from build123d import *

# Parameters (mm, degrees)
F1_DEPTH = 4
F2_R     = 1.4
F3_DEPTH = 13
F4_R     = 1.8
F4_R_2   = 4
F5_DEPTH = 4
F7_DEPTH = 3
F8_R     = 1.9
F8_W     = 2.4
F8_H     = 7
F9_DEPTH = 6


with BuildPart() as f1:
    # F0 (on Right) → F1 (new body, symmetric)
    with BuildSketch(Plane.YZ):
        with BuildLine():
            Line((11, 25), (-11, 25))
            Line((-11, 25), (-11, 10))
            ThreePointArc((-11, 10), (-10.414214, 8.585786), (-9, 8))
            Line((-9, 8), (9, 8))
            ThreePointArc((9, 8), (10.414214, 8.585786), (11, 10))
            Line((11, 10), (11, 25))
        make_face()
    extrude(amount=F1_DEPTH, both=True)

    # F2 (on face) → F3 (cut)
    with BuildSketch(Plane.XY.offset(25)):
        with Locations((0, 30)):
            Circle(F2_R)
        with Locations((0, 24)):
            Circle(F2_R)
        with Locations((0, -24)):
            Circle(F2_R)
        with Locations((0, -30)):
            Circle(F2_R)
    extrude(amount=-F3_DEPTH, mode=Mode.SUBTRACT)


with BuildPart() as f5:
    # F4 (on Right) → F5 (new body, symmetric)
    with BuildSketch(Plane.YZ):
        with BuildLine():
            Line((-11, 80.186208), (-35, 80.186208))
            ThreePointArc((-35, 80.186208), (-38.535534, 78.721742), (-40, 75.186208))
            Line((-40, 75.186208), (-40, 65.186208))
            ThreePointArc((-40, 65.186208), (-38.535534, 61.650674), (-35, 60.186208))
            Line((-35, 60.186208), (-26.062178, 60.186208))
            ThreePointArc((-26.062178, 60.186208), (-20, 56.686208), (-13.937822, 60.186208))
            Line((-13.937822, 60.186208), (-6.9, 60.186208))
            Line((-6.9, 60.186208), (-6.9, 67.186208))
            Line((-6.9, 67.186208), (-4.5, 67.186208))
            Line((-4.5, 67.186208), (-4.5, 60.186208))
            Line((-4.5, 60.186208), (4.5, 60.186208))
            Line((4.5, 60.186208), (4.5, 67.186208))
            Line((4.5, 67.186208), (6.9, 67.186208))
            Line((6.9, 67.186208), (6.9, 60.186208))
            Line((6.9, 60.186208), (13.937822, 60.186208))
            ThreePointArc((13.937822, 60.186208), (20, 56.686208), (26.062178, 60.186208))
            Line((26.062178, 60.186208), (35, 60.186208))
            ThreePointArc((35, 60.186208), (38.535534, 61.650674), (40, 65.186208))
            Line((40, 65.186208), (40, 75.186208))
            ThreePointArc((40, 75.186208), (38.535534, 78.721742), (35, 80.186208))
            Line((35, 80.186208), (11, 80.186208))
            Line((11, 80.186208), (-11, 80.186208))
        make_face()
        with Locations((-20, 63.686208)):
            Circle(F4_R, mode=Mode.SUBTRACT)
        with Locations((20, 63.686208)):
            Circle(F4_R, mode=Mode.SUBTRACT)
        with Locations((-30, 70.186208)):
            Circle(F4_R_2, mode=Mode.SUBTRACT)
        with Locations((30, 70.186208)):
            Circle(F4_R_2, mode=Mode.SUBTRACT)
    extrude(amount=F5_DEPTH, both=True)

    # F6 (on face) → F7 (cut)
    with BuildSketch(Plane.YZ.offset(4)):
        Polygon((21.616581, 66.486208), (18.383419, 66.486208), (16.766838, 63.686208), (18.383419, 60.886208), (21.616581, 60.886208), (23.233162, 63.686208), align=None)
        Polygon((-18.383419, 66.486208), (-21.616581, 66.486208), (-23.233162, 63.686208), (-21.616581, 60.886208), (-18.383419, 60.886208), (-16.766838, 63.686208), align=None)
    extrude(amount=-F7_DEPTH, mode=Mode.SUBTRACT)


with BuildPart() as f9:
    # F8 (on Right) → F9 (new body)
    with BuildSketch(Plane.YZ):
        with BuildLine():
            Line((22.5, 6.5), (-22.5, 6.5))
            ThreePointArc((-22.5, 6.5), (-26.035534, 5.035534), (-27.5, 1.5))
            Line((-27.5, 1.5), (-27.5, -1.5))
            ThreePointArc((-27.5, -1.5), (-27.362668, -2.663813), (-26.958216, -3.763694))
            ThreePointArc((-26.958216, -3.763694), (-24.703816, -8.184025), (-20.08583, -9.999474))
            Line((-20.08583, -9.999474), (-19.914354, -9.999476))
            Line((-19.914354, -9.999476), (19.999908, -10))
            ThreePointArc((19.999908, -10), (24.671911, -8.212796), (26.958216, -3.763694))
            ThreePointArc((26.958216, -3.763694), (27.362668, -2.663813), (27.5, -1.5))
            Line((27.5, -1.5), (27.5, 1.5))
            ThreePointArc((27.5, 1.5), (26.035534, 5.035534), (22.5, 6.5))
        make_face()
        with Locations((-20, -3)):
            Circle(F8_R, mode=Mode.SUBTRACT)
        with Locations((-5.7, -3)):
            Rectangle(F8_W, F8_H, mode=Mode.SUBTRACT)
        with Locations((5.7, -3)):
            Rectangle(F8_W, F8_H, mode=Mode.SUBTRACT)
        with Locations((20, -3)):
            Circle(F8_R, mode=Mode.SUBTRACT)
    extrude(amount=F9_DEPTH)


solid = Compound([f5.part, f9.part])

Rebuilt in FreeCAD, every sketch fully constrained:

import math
import FreeCAD as App
import Part
import Sketcher
from FreeCAD import Vector
Q = App.Units.Quantity


def add_polygon(sketch, points):
    """Adds a closed chain of lines whose ends are joined by coincident constraints."""
    first, n = sketch.GeometryCount, len(points)
    for a, b in zip(points, points[1:] + points[:1]):
        sketch.addGeometry(Part.LineSegment(App.Vector(*a, 0), App.Vector(*b, 0)), False)
    for i in range(n):
        sketch.addConstraint(Sketcher.Constraint("Coincident", first + i, 2, first + (i + 1) % n, 1))

doc = App.newDocument("Part")
body = doc.addObject("PartDesign::Body", "Body")

sketch1 = doc.addObject("Sketcher::SketchObject", "Sketch")
body.addObject(sketch1)
sketch1.AttachmentSupport = (doc.YZ_Plane, [""])
sketch1.MapMode = "FlatFace"
sketch1.addGeometry(Part.LineSegment(Vector(11, 25, 0), Vector(-11, 25, 0)), False)
sketch1.addGeometry(Part.LineSegment(Vector(-11, 25, 0), Vector(-11, 10, 0)), False)
sketch1.addGeometry(Part.ArcOfCircle(Part.Circle(Vector(-9, 10, 0), Vector(0, 0, 1), 2), math.radians(180), math.radians(270)), False)
sketch1.addGeometry(Part.LineSegment(Vector(-9, 8, 0), Vector(9, 8, 0)), False)
sketch1.addGeometry(Part.ArcOfCircle(Part.Circle(Vector(9, 10, 0), Vector(0, 0, 1), 2), math.radians(-90), math.radians(0)), False)
sketch1.addGeometry(Part.LineSegment(Vector(11, 10, 0), Vector(11, 25, 0)), False)
sketch1.addConstraint(Sketcher.Constraint("Coincident", 0, 2, 1, 1))
sketch1.addConstraint(Sketcher.Constraint("Tangent", 1, 2, 2, 1))
sketch1.addConstraint(Sketcher.Constraint("Tangent", 2, 2, 3, 1))
sketch1.addConstraint(Sketcher.Constraint("Tangent", 3, 2, 4, 1))
sketch1.addConstraint(Sketcher.Constraint("Tangent", 4, 2, 5, 1))
sketch1.addConstraint(Sketcher.Constraint("Coincident", 5, 2, 0, 1))
sketch1.addConstraint(Sketcher.Constraint("Horizontal", 0))
sketch1.addConstraint(Sketcher.Constraint("Vertical", 1))
sketch1.addConstraint(Sketcher.Constraint("Horizontal", 3))
sketch1.addConstraint(Sketcher.Constraint("Vertical", 5))
sketch1.addConstraint(Sketcher.Constraint("Equal", 2, 4))
sketch1.addConstraint(Sketcher.Constraint("Radius", 2, 1.999999))
sketch1.addConstraint(Sketcher.Constraint("DistanceX", 0, 2, 0, 1, 22.0))
sketch1.addConstraint(Sketcher.Constraint("DistanceY", 1, 2, 1, 1, 15.0))
sketch1.addConstraint(Sketcher.Constraint("DistanceX", 2, 3, -1, 1, 9.000001))
sketch1.addConstraint(Sketcher.Constraint("DistanceY", -1, 1, 2, 3, 9.999999))
pad1 = doc.addObject("PartDesign::Pad", "Pad")
body.addObject(pad1)
pad1.Profile = sketch1
pad1.Length = 8
pad1.Midplane = True

sketch2 = doc.addObject("Sketcher::SketchObject", "Sketch001")
body.addObject(sketch2)
sketch2.AttachmentSupport = (doc.XY_Plane, [""])
sketch2.MapMode = "FlatFace"
sketch2.AttachmentOffset = App.Placement(Vector(0, 0, 25), App.Rotation())
sketch2.addGeometry(Part.Circle(Vector(0, 30, 0), Vector(0, 0, 1), 1.4), False)
sketch2.addGeometry(Part.Circle(Vector(0, 24, 0), Vector(0, 0, 1), 1.4), False)
sketch2.addGeometry(Part.Circle(Vector(0, -24, 0), Vector(0, 0, 1), 1.4), False)
sketch2.addGeometry(Part.Circle(Vector(0, -30, 0), Vector(0, 0, 1), 1.4), False)
sketch2.addConstraint(Sketcher.Constraint("Equal", 0, 1))
sketch2.addConstraint(Sketcher.Constraint("Equal", 1, 2))
sketch2.addConstraint(Sketcher.Constraint("Equal", 2, 3))
sketch2.addConstraint(Sketcher.Constraint("Symmetric", 1, 3, 2, 3, -1, 1))
sketch2.addConstraint(Sketcher.Constraint("Symmetric", 0, 3, 3, 3, -1, 1))
sketch2.addConstraint(Sketcher.Constraint("PointOnObject", 0, 3, -2))
sketch2.addConstraint(Sketcher.Constraint("PointOnObject", 1, 3, -2))
sketch2.addConstraint(Sketcher.Constraint("Diameter", 0, 2.8))
sketch2.addConstraint(Sketcher.Constraint("DistanceY", -1, 1, 0, 3, 30.0))
sketch2.addConstraint(Sketcher.Constraint("DistanceY", -1, 1, 1, 3, 24.0))
pocket1 = doc.addObject("PartDesign::Pocket", "Pocket")
body.addObject(pocket1)
pocket1.Profile = sketch2
pocket1.Length = 13
body2 = doc.addObject("PartDesign::Body", "Body001")

sketch3 = doc.addObject("Sketcher::SketchObject", "Sketch002")
body2.addObject(sketch3)
sketch3.AttachmentSupport = (doc.getObject("YZ_Plane001"), [""])
sketch3.MapMode = "FlatFace"
sketch3.addGeometry(Part.ArcOfCircle(Part.Circle(Vector(-35, 75.2, 0), Vector(0, 0, 1), 5), math.radians(90), math.radians(180)), False)
sketch3.addGeometry(Part.LineSegment(Vector(-40, 75.2, 0), Vector(-40, 65.2, 0)), False)
sketch3.addGeometry(Part.ArcOfCircle(Part.Circle(Vector(-35, 65.2, 0), Vector(0, 0, 1), 5), math.radians(180), math.radians(270)), False)
sketch3.addGeometry(Part.LineSegment(Vector(-35, 60.2, 0), Vector(-26.1, 60.2, 0)), False)
sketch3.addGeometry(Part.ArcOfCircle(Part.Circle(Vector(-20, 63.7, 0), Vector(0, 0, 1), 7), math.radians(-150), math.radians(-30)), False)
sketch3.addGeometry(Part.LineSegment(Vector(-13.9, 60.2, 0), Vector(-6.9, 60.2, 0)), False)
sketch3.addGeometry(Part.LineSegment(Vector(-6.9, 60.2, 0), Vector(-6.9, 67.2, 0)), False)
sketch3.addGeometry(Part.LineSegment(Vector(-6.9, 67.2, 0), Vector(-4.5, 67.2, 0)), False)
sketch3.addGeometry(Part.LineSegment(Vector(-4.5, 67.2, 0), Vector(-4.5, 60.2, 0)), False)
sketch3.addGeometry(Part.LineSegment(Vector(-4.5, 60.2, 0), Vector(4.5, 60.2, 0)), False)
sketch3.addGeometry(Part.LineSegment(Vector(4.5, 60.2, 0), Vector(4.5, 67.2, 0)), False)
sketch3.addGeometry(Part.LineSegment(Vector(4.5, 67.2, 0), Vector(6.9, 67.2, 0)), False)
sketch3.addGeometry(Part.LineSegment(Vector(6.9, 67.2, 0), Vector(6.9, 60.2, 0)), False)
sketch3.addGeometry(Part.LineSegment(Vector(6.9, 60.2, 0), Vector(13.9, 60.2, 0)), False)
sketch3.addGeometry(Part.ArcOfCircle(Part.Circle(Vector(20, 63.7, 0), Vector(0, 0, 1), 7), math.radians(-150), math.radians(-30)), False)
sketch3.addGeometry(Part.LineSegment(Vector(26.1, 60.2, 0), Vector(35, 60.2, 0)), False)
sketch3.addGeometry(Part.ArcOfCircle(Part.Circle(Vector(35, 65.2, 0), Vector(0, 0, 1), 5), math.radians(-90), math.radians(0)), False)
sketch3.addGeometry(Part.LineSegment(Vector(40, 65.2, 0), Vector(40, 75.2, 0)), False)
sketch3.addGeometry(Part.ArcOfCircle(Part.Circle(Vector(35, 75.2, 0), Vector(0, 0, 1), 5), math.radians(0), math.radians(90)), False)
sketch3.addGeometry(Part.LineSegment(Vector(35, 80.2, 0), Vector(-35, 80.2, 0)), False)
sketch3.addGeometry(Part.Circle(Vector(-20, 63.7, 0), Vector(0, 0, 1), 1.8), False)
sketch3.addGeometry(Part.Circle(Vector(20, 63.7, 0), Vector(0, 0, 1), 1.8), False)
sketch3.addGeometry(Part.Circle(Vector(-30, 70.2, 0), Vector(0, 0, 1), 4), False)
sketch3.addGeometry(Part.Circle(Vector(30, 70.2, 0), Vector(0, 0, 1), 4), False)
sketch3.addConstraint(Sketcher.Constraint("Tangent", 0, 2, 1, 1))
sketch3.addConstraint(Sketcher.Constraint("Tangent", 1, 2, 2, 1))
sketch3.addConstraint(Sketcher.Constraint("Tangent", 2, 2, 3, 1))
sketch3.addConstraint(Sketcher.Constraint("Coincident", 3, 2, 4, 1))
sketch3.addConstraint(Sketcher.Constraint("Coincident", 4, 2, 5, 1))
sketch3.addConstraint(Sketcher.Constraint("Coincident", 5, 2, 6, 1))
sketch3.addConstraint(Sketcher.Constraint("Coincident", 6, 2, 7, 1))
sketch3.addConstraint(Sketcher.Constraint("Coincident", 7, 2, 8, 1))
sketch3.addConstraint(Sketcher.Constraint("Coincident", 8, 2, 9, 1))
sketch3.addConstraint(Sketcher.Constraint("Coincident", 9, 2, 10, 1))
sketch3.addConstraint(Sketcher.Constraint("Coincident", 10, 2, 11, 1))
sketch3.addConstraint(Sketcher.Constraint("Coincident", 11, 2, 12, 1))
sketch3.addConstraint(Sketcher.Constraint("Coincident", 12, 2, 13, 1))
sketch3.addConstraint(Sketcher.Constraint("Coincident", 13, 2, 14, 1))
sketch3.addConstraint(Sketcher.Constraint("Coincident", 14, 2, 15, 1))
sketch3.addConstraint(Sketcher.Constraint("Tangent", 15, 2, 16, 1))
sketch3.addConstraint(Sketcher.Constraint("Tangent", 16, 2, 17, 1))
sketch3.addConstraint(Sketcher.Constraint("Tangent", 17, 2, 18, 1))
sketch3.addConstraint(Sketcher.Constraint("Tangent", 18, 2, 19, 1))
sketch3.addConstraint(Sketcher.Constraint("Tangent", 19, 2, 0, 1))
sketch3.addConstraint(Sketcher.Constraint("Vertical", 1))
sketch3.addConstraint(Sketcher.Constraint("Horizontal", 3))
sketch3.addConstraint(Sketcher.Constraint("Horizontal", 5))
sketch3.addConstraint(Sketcher.Constraint("Vertical", 6))
sketch3.addConstraint(Sketcher.Constraint("Horizontal", 7))
sketch3.addConstraint(Sketcher.Constraint("Vertical", 8))
sketch3.addConstraint(Sketcher.Constraint("Horizontal", 9))
sketch3.addConstraint(Sketcher.Constraint("Vertical", 10))
sketch3.addConstraint(Sketcher.Constraint("Horizontal", 11))
sketch3.addConstraint(Sketcher.Constraint("Vertical", 12))
sketch3.addConstraint(Sketcher.Constraint("Horizontal", 13))
sketch3.addConstraint(Sketcher.Constraint("Horizontal", 15))
sketch3.addConstraint(Sketcher.Constraint("Vertical", 17))
sketch3.addConstraint(Sketcher.Constraint("Horizontal", 19))
sketch3.addConstraint(Sketcher.Constraint("Coincident", 20, 3, 4, 3))
sketch3.addConstraint(Sketcher.Constraint("Coincident", 21, 3, 14, 3))
sketch3.addConstraint(Sketcher.Constraint("Equal", 0, 2))
sketch3.addConstraint(Sketcher.Constraint("Equal", 4, 14))
sketch3.addConstraint(Sketcher.Constraint("Equal", 2, 16))
sketch3.addConstraint(Sketcher.Constraint("Equal", 16, 18))
sketch3.addConstraint(Sketcher.Constraint("Equal", 20, 21))
sketch3.addConstraint(Sketcher.Constraint("Equal", 22, 23))
sketch3.addConstraint(Sketcher.Constraint("Symmetric", 4, 3, 14, 3, -2))
sketch3.addConstraint(Sketcher.Constraint("Symmetric", 2, 3, 16, 3, -2))
sketch3.addConstraint(Sketcher.Constraint("Symmetric", 22, 3, 23, 3, -2))
sketch3.addConstraint(Sketcher.Constraint("Symmetric", 7, 2, 10, 2, -2))
sketch3.addConstraint(Sketcher.Constraint("Symmetric", 5, 2, 12, 2, -2))
sketch3.addConstraint(Sketcher.Constraint("Horizontal", 3, 2, 4, 2))
sketch3.addConstraint(Sketcher.Constraint("Horizontal", 5, 2, 8, 2))
sketch3.addConstraint(Sketcher.Constraint("Diameter", 22, 8.0))
sketch3.addConstraint(Sketcher.Constraint("Radius", 0, 5.0))
sketch3.addConstraint(Sketcher.Constraint("Radius", 4, 7.0))
sketch3.addConstraint(Sketcher.Constraint("Diameter", 20, 3.6))
sketch3.addConstraint(Sketcher.Constraint("DistanceX", 9, 1, 9, 2, 9.0))
sketch3.addConstraint(Sketcher.Constraint("DistanceX", 19, 2, 19, 1, 70.0))
sketch3.addConstraint(Sketcher.Constraint("DistanceY", 1, 2, 1, 1, 10.0))
sketch3.addConstraint(Sketcher.Constraint("DistanceY", 6, 1, 6, 2, 7.0))
sketch3.addConstraint(Sketcher.Constraint("DistanceX", 7, 1, 7, 2, 2.4))
sketch3.addConstraint(Sketcher.Constraint("DistanceX", 4, 3, -1, 1, 20.0))
sketch3.addConstraint(Sketcher.Constraint("DistanceX", 22, 3, -1, 1, 30.0))
sketch3.addConstraint(Sketcher.Constraint("DistanceY", 2, 3, 22, 3, 5.0))
sketch3.addConstraint(Sketcher.Constraint("DistanceY", 4, 3, 2, 3, 1.499999))
sketch3.addConstraint(Sketcher.Constraint("DistanceY", -1, 1, 0, 3, 75.186208))
pad2 = doc.addObject("PartDesign::Pad", "Pad001")
body2.addObject(pad2)
pad2.Profile = sketch3
pad2.Length = 8
pad2.Midplane = True

sketch4 = doc.addObject("Sketcher::SketchObject", "Sketch003")
body2.addObject(sketch4)
sketch4.AttachmentSupport = (doc.getObject("YZ_Plane001"), [""])
sketch4.MapMode = "FlatFace"
sketch4.AttachmentOffset = App.Placement(Vector(0, 0, 4), App.Rotation())
add_polygon(sketch4, [(21.6, 66.5), (18.4, 66.5), (16.8, 63.7), (18.4, 60.9), (21.6, 60.9), (23.2, 63.7)])
add_polygon(sketch4, [(-18.4, 66.5), (-21.6, 66.5), (-23.2, 63.7), (-21.6, 60.9), (-18.4, 60.9), (-16.8, 63.7)])
sketch4.addConstraint(Sketcher.Constraint("Horizontal", 0))
sketch4.addConstraint(Sketcher.Constraint("Horizontal", 3))
sketch4.addConstraint(Sketcher.Constraint("Horizontal", 6))
sketch4.addConstraint(Sketcher.Constraint("Horizontal", 9))
sketch4.addConstraint(Sketcher.Constraint("Symmetric", 5, 2, 6, 2, -2))
sketch4.addConstraint(Sketcher.Constraint("Symmetric", 4, 2, 7, 2, -2))
sketch4.addConstraint(Sketcher.Constraint("Symmetric", 3, 2, 8, 2, -2))
sketch4.addConstraint(Sketcher.Constraint("Symmetric", 1, 2, 10, 2, -2))
sketch4.addConstraint(Sketcher.Constraint("Parallel", 1, 4))
sketch4.addConstraint(Sketcher.Constraint("Parallel", 2, 5))
sketch4.addConstraint(Sketcher.Constraint("Parallel", 4, 7))
sketch4.addConstraint(Sketcher.Constraint("Parallel", 7, 10))
sketch4.addConstraint(Sketcher.Constraint("Parallel", 8, 11))
sketch4.addConstraint(Sketcher.Constraint("Horizontal", 1, 2, 4, 2))
sketch4.addConstraint(Sketcher.Constraint("Vertical", 0, 2, 2, 2))
sketch4.addConstraint(Sketcher.Constraint("Angle", 1, Q("-120.000004 deg")))
sketch4.addConstraint(Sketcher.Constraint("DistanceX", 6, 2, 0, 2, 40.0))
sketch4.addConstraint(Sketcher.Constraint("DistanceY", 1, 2, 0, 2, 2.8))
sketch4.addConstraint(Sketcher.Constraint("DistanceX", 0, 2, 0, 1, 3.233162))
sketch4.addConstraint(Sketcher.Constraint("DistanceY", -1, 1, 0, 2, 66.486208))
pocket2 = doc.addObject("PartDesign::Pocket", "Pocket001")
body2.addObject(pocket2)
pocket2.Profile = sketch4
pocket2.Length = 3
body3 = doc.addObject("PartDesign::Body", "Body002")

sketch5 = doc.addObject("Sketcher::SketchObject", "Sketch004")
body3.addObject(sketch5)
sketch5.AttachmentSupport = (doc.getObject("YZ_Plane002"), [""])
sketch5.MapMode = "FlatFace"
sketch5.addGeometry(Part.LineSegment(Vector(22.5, 6.5, 0), Vector(-22.5, 6.5, 0)), False)
sketch5.addGeometry(Part.ArcOfCircle(Part.Circle(Vector(-22.5, 1.5, 0), Vector(0, 0, 1), 5), math.radians(90), math.radians(180)), False)
sketch5.addGeometry(Part.LineSegment(Vector(-27.5, 1.5, 0), Vector(-27.5, -1.5, 0)), False)
sketch5.addGeometry(Part.ArcOfCircle(Part.Circle(Vector(-22.5, -1.5, 0), Vector(0, 0, 1), 5), math.radians(180), math.radians(207)), False)
sketch5.addGeometry(Part.ArcOfCircle(Part.Circle(Vector(-20, -3, 0), Vector(0, 0, 1), 7), math.radians(-174), math.radians(-91)), False)
sketch5.addGeometry(Part.LineSegment(Vector(-20.09, -10, 0), Vector(-19.91, -10, 0)), False)
sketch5.addGeometry(Part.LineSegment(Vector(-19.91, -10, 0), Vector(20, -10, 0)), False)
sketch5.addGeometry(Part.ArcOfCircle(Part.Circle(Vector(20, -3, 0), Vector(0, 0, 1), 7), math.radians(-90), math.radians(-6)), False)
sketch5.addGeometry(Part.ArcOfCircle(Part.Circle(Vector(22.5, -1.5, 0), Vector(0, 0, 1), 5), math.radians(-27), math.radians(0)), False)
sketch5.addGeometry(Part.LineSegment(Vector(27.5, -1.5, 0), Vector(27.5, 1.5, 0)), False)
sketch5.addGeometry(Part.ArcOfCircle(Part.Circle(Vector(22.5, 1.5, 0), Vector(0, 0, 1), 5), math.radians(0), math.radians(90)), False)
sketch5.addGeometry(Part.Circle(Vector(-20, -3, 0), Vector(0, 0, 1), 1.9), False)
add_polygon(sketch5, [(-4.5, -6.5), (-6.9, -6.5), (-6.9, 0.5), (-4.5, 0.5)])
add_polygon(sketch5, [(6.9, -6.5), (4.5, -6.5), (4.5, 0.5), (6.9, 0.5)])
sketch5.addGeometry(Part.Circle(Vector(20, -3, 0), Vector(0, 0, 1), 1.9), False)
sketch5.addConstraint(Sketcher.Constraint("Tangent", 0, 2, 1, 1))
sketch5.addConstraint(Sketcher.Constraint("Tangent", 1, 2, 2, 1))
sketch5.addConstraint(Sketcher.Constraint("Tangent", 2, 2, 3, 1))
sketch5.addConstraint(Sketcher.Constraint("Coincident", 3, 2, 4, 1))
sketch5.addConstraint(Sketcher.Constraint("Coincident", 4, 2, 5, 1))
sketch5.addConstraint(Sketcher.Constraint("Coincident", 5, 2, 6, 1))
sketch5.addConstraint(Sketcher.Constraint("Tangent", 6, 2, 7, 1))
sketch5.addConstraint(Sketcher.Constraint("Coincident", 7, 2, 8, 1))
sketch5.addConstraint(Sketcher.Constraint("Tangent", 8, 2, 9, 1))
sketch5.addConstraint(Sketcher.Constraint("Tangent", 9, 2, 10, 1))
sketch5.addConstraint(Sketcher.Constraint("Tangent", 10, 2, 0, 1))
sketch5.addConstraint(Sketcher.Constraint("Horizontal", 0))
sketch5.addConstraint(Sketcher.Constraint("Vertical", 2))
sketch5.addConstraint(Sketcher.Constraint("Vertical", 9))
sketch5.addConstraint(Sketcher.Constraint("Horizontal", 12))
sketch5.addConstraint(Sketcher.Constraint("Vertical", 13))
sketch5.addConstraint(Sketcher.Constraint("Horizontal", 14))
sketch5.addConstraint(Sketcher.Constraint("Vertical", 15))
sketch5.addConstraint(Sketcher.Constraint("Horizontal", 16))
sketch5.addConstraint(Sketcher.Constraint("Vertical", 17))
sketch5.addConstraint(Sketcher.Constraint("Horizontal", 18))
sketch5.addConstraint(Sketcher.Constraint("Vertical", 19))
sketch5.addConstraint(Sketcher.Constraint("Coincident", 11, 3, 4, 3))
sketch5.addConstraint(Sketcher.Constraint("Coincident", 20, 3, 7, 3))
sketch5.addConstraint(Sketcher.Constraint("Equal", 1, 3))
sketch5.addConstraint(Sketcher.Constraint("Equal", 4, 7))
sketch5.addConstraint(Sketcher.Constraint("Equal", 3, 8))
sketch5.addConstraint(Sketcher.Constraint("Equal", 8, 10))
sketch5.addConstraint(Sketcher.Constraint("Equal", 11, 20))
sketch5.addConstraint(Sketcher.Constraint("Symmetric", 1, 3, 8, 3, -1, 1))
sketch5.addConstraint(Sketcher.Constraint("Symmetric", 4, 3, 7, 3, -2))
sketch5.addConstraint(Sketcher.Constraint("Symmetric", 15, 2, 16, 2, -2))
sketch5.addConstraint(Sketcher.Constraint("Symmetric", 13, 2, 18, 2, -2))
sketch5.addConstraint(Sketcher.Constraint("Parallel", 5, 6))
sketch5.addConstraint(Sketcher.Constraint("Horizontal", 3, 3, 8, 3))
sketch5.addConstraint(Sketcher.Constraint("Radius", 1, 5.0))
sketch5.addConstraint(Sketcher.Constraint("Radius", 4, 7.0))
sketch5.addConstraint(Sketcher.Constraint("Diameter", 11, 3.8))
sketch5.addConstraint(Sketcher.Constraint("DistanceX", 0, 2, 0, 1, 45.0))
sketch5.addConstraint(Sketcher.Constraint("DistanceY", 2, 2, 2, 1, 3.0))
sketch5.addConstraint(Sketcher.Constraint("DistanceY", 13, 1, 13, 2, 7.0))
sketch5.addConstraint(Sketcher.Constraint("DistanceX", 12, 2, 12, 1, 2.4))
sketch5.addConstraint(Sketcher.Constraint("DistanceX", 4, 3, -1, 1, 20.0))
sketch5.addConstraint(Sketcher.Constraint("DistanceY", 4, 3, -1, 1, 3.0))
sketch5.addConstraint(Sketcher.Constraint("DistanceY", 12, 2, 3, 3, 4.999999))
sketch5.addConstraint(Sketcher.Constraint("DistanceX", 1, 3, 14, 2, 18.0))
sketch5.addConstraint(Sketcher.Constraint("DistanceX", 4, 2, -1, 1, 20.08583))
sketch5.addConstraint(Sketcher.Constraint("Distance", 5, 0.171476))
pad3 = doc.addObject("PartDesign::Pad", "Pad002")
body3.addObject(pad3)
pad3.Profile = sketch5
pad3.Length = 6
body.Visibility = False

doc.recompute()
